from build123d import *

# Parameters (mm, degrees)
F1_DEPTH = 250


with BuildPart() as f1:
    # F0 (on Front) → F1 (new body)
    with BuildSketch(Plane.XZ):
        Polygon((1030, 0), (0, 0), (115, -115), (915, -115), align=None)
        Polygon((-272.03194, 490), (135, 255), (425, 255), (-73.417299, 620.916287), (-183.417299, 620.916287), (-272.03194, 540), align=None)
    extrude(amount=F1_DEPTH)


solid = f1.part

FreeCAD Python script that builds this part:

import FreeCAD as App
import Part
import Sketcher
Q = App.Units.Quantity

doc = App.newDocument("Part")
body = doc.addObject("PartDesign::Body", "Body")
body.AllowCompound = True

# Sketch on XZ plane
sketch1 = doc.addObject("Sketcher::SketchObject", "Sketch")
body.addObject(sketch1)
sketch1.AttachmentSupport = (doc.XZ_Plane, [""])
sketch1.MapMode = "FlatFace"
sketch1.addGeometry([
    Part.LineSegment(App.Vector(1030, 0, 0), App.Vector(0, 0, 0)),  # 0
    Part.LineSegment(App.Vector(0, 0, 0), App.Vector(115, -115, 0)),  # 1
    Part.LineSegment(App.Vector(115, -115, 0), App.Vector(915, -115, 0)),  # 2
    Part.LineSegment(App.Vector(915, -115, 0), App.Vector(1030, 0, 0)),  # 3
    Part.LineSegment(App.Vector(-272, 490, 0), App.Vector(135, 255, 0)),  # 4
    Part.LineSegment(App.Vector(135, 255, 0), App.Vector(425, 255, 0)),  # 5
    Part.LineSegment(App.Vector(425, 255, 0), App.Vector(-73, 621, 0)),  # 6
    Part.LineSegment(App.Vector(-73, 621, 0), App.Vector(-183, 621, 0)),  # 7
    Part.LineSegment(App.Vector(-183, 621, 0), App.Vector(-272, 540, 0)),  # 8
    Part.LineSegment(App.Vector(-272, 540, 0), App.Vector(-272, 490, 0)),  # 9
], False)
sketch1.addConstraint([
    Sketcher.Constraint("Coincident", 0, 2, 1, 1),
    Sketcher.Constraint("Coincident", 1, 2, 2, 1),
    Sketcher.Constraint("Coincident", 2, 2, 3, 1),
    Sketcher.Constraint("Coincident", 3, 2, 0, 1),
    Sketcher.Constraint("Coincident", 4, 2, 5, 1),
    Sketcher.Constraint("Coincident", 5, 2, 6, 1),
    Sketcher.Constraint("Coincident", 6, 2, 7, 1),
    Sketcher.Constraint("Coincident", 7, 2, 8, 1),
    Sketcher.Constraint("Coincident", 8, 2, 9, 1),
    Sketcher.Constraint("Coincident", 9, 2, 4, 1),
    Sketcher.Constraint("Horizontal", 0),
    Sketcher.Constraint("Horizontal", 2),
    Sketcher.Constraint("Horizontal", 5),
    Sketcher.Constraint("Horizontal", 7),
    Sketcher.Constraint("Vertical", 9),
    Sketcher.Constraint("Coincident", 0, 2, -1, 1),
    Sketcher.Constraint("Perpendicular", 1, 3),
    Sketcher.Constraint("Equal", 1, 3),
    Sketcher.Constraint("DistanceX", 0, 2, 0, 1, 1030.0),
    Sketcher.Constraint("DistanceX", 2, 1, 2, 2, 800.0),
    Sketcher.Constraint("DistanceX", 5, 1, 5, 2, 290.0),
    Sketcher.Constraint("DistanceX", 7, 2, 7, 1, 110.0),
    Sketcher.Constraint("DistanceY", 9, 2, 9, 1, 50.0),
    Sketcher.Constraint("Angle", 4, Q("-30 deg")),
    Sketcher.Constraint("Distance", 4, 470.0),
    Sketcher.Constraint("Distance", 8, 120.0),
    Sketcher.Constraint("DistanceX", -1, 1, 4, 2, 135.0),
    Sketcher.Constraint("DistanceY", -1, 1, 4, 2, 255.0),
    Sketcher.Constraint("Angle", 8, Q("-137.6 deg")),
])
pad1 = doc.addObject("PartDesign::Pad", "Pad")
body.addObject(pad1)
pad1.Profile = sketch1
pad1.Length = 250

doc.recompute()
